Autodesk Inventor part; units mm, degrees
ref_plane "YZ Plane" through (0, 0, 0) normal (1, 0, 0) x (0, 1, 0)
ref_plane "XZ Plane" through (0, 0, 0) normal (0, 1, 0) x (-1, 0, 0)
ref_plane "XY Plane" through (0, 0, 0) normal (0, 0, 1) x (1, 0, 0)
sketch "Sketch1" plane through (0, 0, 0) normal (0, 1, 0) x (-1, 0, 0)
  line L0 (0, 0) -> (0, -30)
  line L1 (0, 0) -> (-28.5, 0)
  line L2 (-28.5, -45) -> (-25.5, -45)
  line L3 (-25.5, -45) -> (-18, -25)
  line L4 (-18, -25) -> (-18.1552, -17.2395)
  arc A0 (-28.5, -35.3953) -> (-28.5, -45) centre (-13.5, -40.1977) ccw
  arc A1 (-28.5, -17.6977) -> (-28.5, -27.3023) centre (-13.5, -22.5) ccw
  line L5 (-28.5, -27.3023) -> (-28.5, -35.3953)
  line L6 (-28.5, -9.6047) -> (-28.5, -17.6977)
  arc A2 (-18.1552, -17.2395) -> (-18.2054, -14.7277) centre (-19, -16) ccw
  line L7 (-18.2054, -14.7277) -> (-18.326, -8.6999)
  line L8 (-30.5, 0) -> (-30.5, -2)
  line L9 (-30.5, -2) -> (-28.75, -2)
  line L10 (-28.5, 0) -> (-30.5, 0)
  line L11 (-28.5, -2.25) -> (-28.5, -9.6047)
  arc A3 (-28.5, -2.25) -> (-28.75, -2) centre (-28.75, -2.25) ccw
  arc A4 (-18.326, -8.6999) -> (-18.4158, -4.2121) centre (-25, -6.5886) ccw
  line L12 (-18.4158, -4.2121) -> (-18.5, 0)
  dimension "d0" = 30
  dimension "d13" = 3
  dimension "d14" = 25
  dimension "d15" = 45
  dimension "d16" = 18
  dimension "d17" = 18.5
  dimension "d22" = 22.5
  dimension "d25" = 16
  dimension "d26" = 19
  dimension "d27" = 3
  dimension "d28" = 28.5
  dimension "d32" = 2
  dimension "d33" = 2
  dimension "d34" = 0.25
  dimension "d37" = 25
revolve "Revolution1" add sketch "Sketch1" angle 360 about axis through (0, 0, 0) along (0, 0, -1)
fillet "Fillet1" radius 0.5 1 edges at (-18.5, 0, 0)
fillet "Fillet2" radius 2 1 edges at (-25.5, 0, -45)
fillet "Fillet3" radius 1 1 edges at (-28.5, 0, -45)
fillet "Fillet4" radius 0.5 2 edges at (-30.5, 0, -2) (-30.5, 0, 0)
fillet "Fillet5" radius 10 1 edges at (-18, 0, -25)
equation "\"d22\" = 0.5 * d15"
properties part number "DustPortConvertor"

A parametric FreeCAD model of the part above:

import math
import FreeCAD as App
import Part
import Sketcher
Q = App.Units.Quantity


def edges_at(feature, points):
    """Names of the edges that pass closest to the given points."""
    edges = feature.Shape.Edges
    near = lambda p: min(range(len(edges)), key=lambda i: edges[i].distToShape(Part.Vertex(*p))[0])
    return sorted({f"Edge{near(p) + 1}" for p in points})

doc = App.newDocument("Part")
body = doc.addObject("PartDesign::Body", "Body")

# Sketch on XZ plane
sketch1 = doc.addObject("Sketcher::SketchObject", "Sketch")
body.addObject(sketch1)
sketch1.AttachmentSupport = (doc.XZ_Plane, [""])
sketch1.MapMode = "FlatFace"
sketch1.addGeometry([
    Part.LineSegment(App.Vector(18.4158, -4.2121, 0), App.Vector(18.5, 0, 0)),  # 0
    Part.LineSegment(App.Vector(18.5, 0, 0), App.Vector(30.5, 0, 0)),  # 1
    Part.LineSegment(App.Vector(30.5, 0, 0), App.Vector(30.5, -2, 0)),  # 2
    Part.LineSegment(App.Vector(30.5, -2, 0), App.Vector(28.75, -2, 0)),  # 3
    Part.ArcOfCircle(Part.Circle(App.Vector(28.75, -2.25, 0), App.Vector(0, 0, 1), 0.25), math.radians(90), math.radians(180)),  # 4
    Part.LineSegment(App.Vector(28.5, -2.25, 0), App.Vector(28.5, -17.6977, 0)),  # 5
    Part.ArcOfCircle(Part.Circle(App.Vector(13.5, -22.5, 0), App.Vector(0, 0, 1), 15.749987), math.radians(-17.752641), math.radians(17.752641)),  # 6
    Part.LineSegment(App.Vector(28.5, -27.3023, 0), App.Vector(28.5, -35.3953, 0)),  # 7
    Part.ArcOfCircle(Part.Circle(App.Vector(13.5, -40.1977, 0), App.Vector(0, 0, 1), 15.750017), math.radians(-17.752641), math.radians(17.752987)),  # 8
    Part.LineSegment(App.Vector(28.5, -45, 0), App.Vector(25.5, -45, 0)),  # 9
    Part.LineSegment(App.Vector(25.5, -45, 0), App.Vector(18, -25, 0)),  # 10
    Part.LineSegment(App.Vector(18, -25, 0), App.Vector(18.1552, -17.2395, 0)),  # 11
    Part.ArcOfCircle(Part.Circle(App.Vector(19, -16, 0), App.Vector(0, 0, 1), 1.500016), math.radians(121.986354), math.radians(235.723021)),  # 12
    Part.LineSegment(App.Vector(18.2054, -14.7277, 0), App.Vector(18.326, -8.6999, 0)),  # 13
    Part.ArcOfCircle(Part.Circle(App.Vector(25, -6.5886, 0), App.Vector(0, 0, 1), 6.99999), math.radians(160.153468), math.radians(197.554612)),  # 14
], False)
sketch1.addConstraint([
    Sketcher.Constraint("Coincident", 0, 2, 1, 1),
    Sketcher.Constraint("Coincident", 1, 2, 2, 1),
    Sketcher.Constraint("Coincident", 2, 2, 3, 1),
    Sketcher.Constraint("Tangent", 3, 2, 4, 1),
    Sketcher.Constraint("Tangent", 4, 2, 5, 1),
    Sketcher.Constraint("Coincident", 5, 2, 6, 2),
    Sketcher.Constraint("Coincident", 6, 1, 7, 1),
    Sketcher.Constraint("Coincident", 7, 2, 8, 2),
    Sketcher.Constraint("Coincident", 8, 1, 9, 1),
    Sketcher.Constraint("Coincident", 9, 2, 10, 1),
    Sketcher.Constraint("Coincident", 10, 2, 11, 1),
    Sketcher.Constraint("Coincident", 11, 2, 12, 2),
    Sketcher.Constraint("Coincident", 12, 1, 13, 1),
    Sketcher.Constraint("Coincident", 13, 2, 14, 2),
    Sketcher.Constraint("Coincident", 14, 1, 0, 1),
    Sketcher.Constraint("Horizontal", 1),
    Sketcher.Constraint("Vertical", 2),
    Sketcher.Constraint("Horizontal", 3),
    Sketcher.Constraint("Vertical", 5),
    Sketcher.Constraint("Vertical", 7),
    Sketcher.Constraint("Horizontal", 9),
    Sketcher.Constraint("Equal", 6, 8),
    Sketcher.Constraint("PointOnObject", 0, 2, -1),
    Sketcher.Constraint("Parallel", 0, 11),
    Sketcher.Constraint("Parallel", 11, 13),
    Sketcher.Constraint("Vertical", 6, 3, 8, 3),
    Sketcher.Constraint("Vertical", 5, 2, 6, 1),
    Sketcher.Constraint("Vertical", 7, 2, 8, 1),
    Sketcher.Constraint("Radius", 12, Q("1.5 mm")),
    Sketcher.Constraint("DistanceX", 9, 2, 9, 1, Q("3 mm")),
    Sketcher.Constraint("DistanceY", 2, 2, 2, 1, Q("2 mm")),
    Sketcher.Constraint("Radius", 4, Q("0.25 mm")),
    Sketcher.Constraint("DistanceX", -1, 1, 12, 3, Q("19 mm")),
    Sketcher.Constraint("DistanceY", 12, 3, -1, 1, Q("16 mm")),
    Sketcher.Constraint("DistanceX", -1, 1, 14, 3, Q("25 mm")),
    Sketcher.Constraint("DistanceY", 8, 1, -1, 1, Q("45 mm")),
    Sketcher.Constraint("DistanceX", -1, 1, 10, 2, Q("18 mm")),
    Sketcher.Constraint("DistanceY", 10, 2, -1, 1, Q("25 mm")),
    Sketcher.Constraint("Radius", 14, Q("7 mm")),
    Sketcher.Constraint("DistanceX", 4, 2, 2, 2, Q("2 mm")),
    Sketcher.Constraint("DistanceY", 6, 3, -1, 1, Q("22.5 mm")),
    Sketcher.Constraint("DistanceX", -1, 1, 0, 2, Q("18.5 mm")),
    Sketcher.Constraint("DistanceX", -1, 1, 4, 2, Q("28.5 mm")),
    Sketcher.Constraint("Radius", 6, Q("15.75 mm")),
    Sketcher.Constraint("DistanceX", 6, 3, 0, 2, Q("5 mm")),
    Sketcher.Constraint("DistanceY", 13, 2, -1, 1, Q("8.7 mm")),
    Sketcher.Constraint("Distance", 0, Q("4.213 mm")),
    Sketcher.Constraint("Distance", 11, Q("7.762 mm")),
])
revolution = doc.addObject("PartDesign::Revolution", "Revolution")
body.addObject(revolution)
revolution.Profile = sketch1
revolution.ReferenceAxis = (sketch1, ["V_Axis"])
revolution.Angle = 360
doc.recompute()

fillet = doc.addObject("PartDesign::Fillet", "Fillet")
body.addObject(fillet)
fillet.Base = (revolution, edges_at(revolution, [(-18.5, 0, 0)]))
fillet.Radius = 0.5
doc.recompute()

fillet2 = doc.addObject("PartDesign::Fillet", "Fillet001")
body.addObject(fillet2)
fillet2.Base = (fillet, edges_at(fillet, [(-25.5, 0, -45)]))
fillet2.Radius = 2
doc.recompute()

fillet3 = doc.addObject("PartDesign::Fillet", "Fillet002")
body.addObject(fillet3)
fillet3.Base = (fillet2, edges_at(fillet2, [(-28.5, 0, -45)]))
fillet3.Radius = 1
doc.recompute()

fillet4 = doc.addObject("PartDesign::Fillet", "Fillet003")
body.addObject(fillet4)
fillet4.Base = (fillet3, edges_at(fillet3, [(-30.5, 0, -2), (-30.5, 0, 0)]))
fillet4.Radius = 0.5
doc.recompute()

fillet5 = doc.addObject("PartDesign::Fillet", "Fillet004")
body.addObject(fillet5)
fillet5.Base = (fillet4, edges_at(fillet4, [(-18, 0, -25)]))
fillet5.Radius = 10

doc.recompute()
